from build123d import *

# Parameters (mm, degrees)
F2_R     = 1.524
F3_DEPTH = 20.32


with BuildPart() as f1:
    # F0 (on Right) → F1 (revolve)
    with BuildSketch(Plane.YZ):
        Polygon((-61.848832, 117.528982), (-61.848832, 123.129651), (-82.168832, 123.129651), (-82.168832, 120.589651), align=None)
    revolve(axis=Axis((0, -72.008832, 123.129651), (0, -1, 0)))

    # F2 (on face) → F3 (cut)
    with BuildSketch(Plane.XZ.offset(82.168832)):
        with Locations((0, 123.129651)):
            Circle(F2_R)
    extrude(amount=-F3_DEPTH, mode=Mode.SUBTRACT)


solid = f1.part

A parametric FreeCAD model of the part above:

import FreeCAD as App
import Part
import Sketcher

V = App.Vector
Q = App.Units.Quantity


def add_polygon(sketch, points):
    """Adds a closed chain of lines whose ends are joined by coincident constraints."""
    first, n = sketch.GeometryCount, len(points)
    for a, b in zip(points, points[1:] + points[:1]):
        sketch.addGeometry(Part.LineSegment(App.Vector(*a, 0), App.Vector(*b, 0)), False)
    for i in range(n):
        sketch.addConstraint(Sketcher.Constraint("Coincident", first + i, 2, first + (i + 1) % n, 1))

doc = App.newDocument("Part")
body = doc.addObject("PartDesign::Body", "Body")

# Sketch on YZ plane
sketch1 = doc.addObject("Sketcher::SketchObject", "Sketch")
body.addObject(sketch1)
sketch1.AttachmentSupport = (doc.YZ_Plane, [""])
sketch1.MapMode = "FlatFace"
add_polygon(sketch1, [(-61.848832, 117.528982), (-61.848832, 123.129651), (-82.168832, 123.129651), (-82.168832, 120.589651)])  # lines 0-3
sketch1.addGeometry(Part.LineSegment(V(-61.848832, 123.129651, 0), V(-82.168832, 123.129651, 0)), True)  # axis
sketch1.addConstraint([
    Sketcher.Constraint("Vertical", 0),
    Sketcher.Constraint("Horizontal", 1),
    Sketcher.Constraint("Vertical", 2),
    Sketcher.Constraint("Horizontal", 4),
    Sketcher.Constraint("Coincident", 4, 1, 0, 2),
    Sketcher.Constraint("Vertical", 2, 2, 4, 2),
    Sketcher.Constraint("DistanceX", 1, 2, 1, 1, Q("0.8 in")),
    Sketcher.Constraint("DistanceY", 2, 2, 2, 1, Q("0.1 in")),
    Sketcher.Constraint("DistanceY", 0, 1, 0, 2, 5.600669),
    Sketcher.Constraint("DistanceY", -1, 1, 0, 2, 123.129651),
    Sketcher.Constraint("DistanceX", 1, 2, -1, 1, 82.168832),
])
revolution = doc.addObject("PartDesign::Revolution", "Revolution")
body.addObject(revolution)
revolution.Profile = sketch1
revolution.ReferenceAxis = (sketch1, ["Axis0"])
revolution.Angle = 360

# Sketch on XZ plane
sketch2 = doc.addObject("Sketcher::SketchObject", "Sketch001")
body.addObject(sketch2)
sketch2.AttachmentSupport = (doc.XZ_Plane, [""])
sketch2.MapMode = "FlatFace"
sketch2.AttachmentOffset = App.Placement(V(0, 0, 82.168832), App.Rotation())
sketch2.addGeometry(Part.Circle(V(0, 123.129651, 0), V(0, 0, 1), 1.524), False)
sketch2.addConstraint([
    Sketcher.Constraint("PointOnObject", 0, 3, -2),
    Sketcher.Constraint("Diameter", 0, Q("0.12 in")),
    Sketcher.Constraint("DistanceY", -1, 1, 0, 3, 123.129651),
])
pocket1 = doc.addObject("PartDesign::Pocket", "Pocket")
body.addObject(pocket1)
pocket1.Profile = sketch2
pocket1.Length = Q("0.8 in")

doc.recompute()
